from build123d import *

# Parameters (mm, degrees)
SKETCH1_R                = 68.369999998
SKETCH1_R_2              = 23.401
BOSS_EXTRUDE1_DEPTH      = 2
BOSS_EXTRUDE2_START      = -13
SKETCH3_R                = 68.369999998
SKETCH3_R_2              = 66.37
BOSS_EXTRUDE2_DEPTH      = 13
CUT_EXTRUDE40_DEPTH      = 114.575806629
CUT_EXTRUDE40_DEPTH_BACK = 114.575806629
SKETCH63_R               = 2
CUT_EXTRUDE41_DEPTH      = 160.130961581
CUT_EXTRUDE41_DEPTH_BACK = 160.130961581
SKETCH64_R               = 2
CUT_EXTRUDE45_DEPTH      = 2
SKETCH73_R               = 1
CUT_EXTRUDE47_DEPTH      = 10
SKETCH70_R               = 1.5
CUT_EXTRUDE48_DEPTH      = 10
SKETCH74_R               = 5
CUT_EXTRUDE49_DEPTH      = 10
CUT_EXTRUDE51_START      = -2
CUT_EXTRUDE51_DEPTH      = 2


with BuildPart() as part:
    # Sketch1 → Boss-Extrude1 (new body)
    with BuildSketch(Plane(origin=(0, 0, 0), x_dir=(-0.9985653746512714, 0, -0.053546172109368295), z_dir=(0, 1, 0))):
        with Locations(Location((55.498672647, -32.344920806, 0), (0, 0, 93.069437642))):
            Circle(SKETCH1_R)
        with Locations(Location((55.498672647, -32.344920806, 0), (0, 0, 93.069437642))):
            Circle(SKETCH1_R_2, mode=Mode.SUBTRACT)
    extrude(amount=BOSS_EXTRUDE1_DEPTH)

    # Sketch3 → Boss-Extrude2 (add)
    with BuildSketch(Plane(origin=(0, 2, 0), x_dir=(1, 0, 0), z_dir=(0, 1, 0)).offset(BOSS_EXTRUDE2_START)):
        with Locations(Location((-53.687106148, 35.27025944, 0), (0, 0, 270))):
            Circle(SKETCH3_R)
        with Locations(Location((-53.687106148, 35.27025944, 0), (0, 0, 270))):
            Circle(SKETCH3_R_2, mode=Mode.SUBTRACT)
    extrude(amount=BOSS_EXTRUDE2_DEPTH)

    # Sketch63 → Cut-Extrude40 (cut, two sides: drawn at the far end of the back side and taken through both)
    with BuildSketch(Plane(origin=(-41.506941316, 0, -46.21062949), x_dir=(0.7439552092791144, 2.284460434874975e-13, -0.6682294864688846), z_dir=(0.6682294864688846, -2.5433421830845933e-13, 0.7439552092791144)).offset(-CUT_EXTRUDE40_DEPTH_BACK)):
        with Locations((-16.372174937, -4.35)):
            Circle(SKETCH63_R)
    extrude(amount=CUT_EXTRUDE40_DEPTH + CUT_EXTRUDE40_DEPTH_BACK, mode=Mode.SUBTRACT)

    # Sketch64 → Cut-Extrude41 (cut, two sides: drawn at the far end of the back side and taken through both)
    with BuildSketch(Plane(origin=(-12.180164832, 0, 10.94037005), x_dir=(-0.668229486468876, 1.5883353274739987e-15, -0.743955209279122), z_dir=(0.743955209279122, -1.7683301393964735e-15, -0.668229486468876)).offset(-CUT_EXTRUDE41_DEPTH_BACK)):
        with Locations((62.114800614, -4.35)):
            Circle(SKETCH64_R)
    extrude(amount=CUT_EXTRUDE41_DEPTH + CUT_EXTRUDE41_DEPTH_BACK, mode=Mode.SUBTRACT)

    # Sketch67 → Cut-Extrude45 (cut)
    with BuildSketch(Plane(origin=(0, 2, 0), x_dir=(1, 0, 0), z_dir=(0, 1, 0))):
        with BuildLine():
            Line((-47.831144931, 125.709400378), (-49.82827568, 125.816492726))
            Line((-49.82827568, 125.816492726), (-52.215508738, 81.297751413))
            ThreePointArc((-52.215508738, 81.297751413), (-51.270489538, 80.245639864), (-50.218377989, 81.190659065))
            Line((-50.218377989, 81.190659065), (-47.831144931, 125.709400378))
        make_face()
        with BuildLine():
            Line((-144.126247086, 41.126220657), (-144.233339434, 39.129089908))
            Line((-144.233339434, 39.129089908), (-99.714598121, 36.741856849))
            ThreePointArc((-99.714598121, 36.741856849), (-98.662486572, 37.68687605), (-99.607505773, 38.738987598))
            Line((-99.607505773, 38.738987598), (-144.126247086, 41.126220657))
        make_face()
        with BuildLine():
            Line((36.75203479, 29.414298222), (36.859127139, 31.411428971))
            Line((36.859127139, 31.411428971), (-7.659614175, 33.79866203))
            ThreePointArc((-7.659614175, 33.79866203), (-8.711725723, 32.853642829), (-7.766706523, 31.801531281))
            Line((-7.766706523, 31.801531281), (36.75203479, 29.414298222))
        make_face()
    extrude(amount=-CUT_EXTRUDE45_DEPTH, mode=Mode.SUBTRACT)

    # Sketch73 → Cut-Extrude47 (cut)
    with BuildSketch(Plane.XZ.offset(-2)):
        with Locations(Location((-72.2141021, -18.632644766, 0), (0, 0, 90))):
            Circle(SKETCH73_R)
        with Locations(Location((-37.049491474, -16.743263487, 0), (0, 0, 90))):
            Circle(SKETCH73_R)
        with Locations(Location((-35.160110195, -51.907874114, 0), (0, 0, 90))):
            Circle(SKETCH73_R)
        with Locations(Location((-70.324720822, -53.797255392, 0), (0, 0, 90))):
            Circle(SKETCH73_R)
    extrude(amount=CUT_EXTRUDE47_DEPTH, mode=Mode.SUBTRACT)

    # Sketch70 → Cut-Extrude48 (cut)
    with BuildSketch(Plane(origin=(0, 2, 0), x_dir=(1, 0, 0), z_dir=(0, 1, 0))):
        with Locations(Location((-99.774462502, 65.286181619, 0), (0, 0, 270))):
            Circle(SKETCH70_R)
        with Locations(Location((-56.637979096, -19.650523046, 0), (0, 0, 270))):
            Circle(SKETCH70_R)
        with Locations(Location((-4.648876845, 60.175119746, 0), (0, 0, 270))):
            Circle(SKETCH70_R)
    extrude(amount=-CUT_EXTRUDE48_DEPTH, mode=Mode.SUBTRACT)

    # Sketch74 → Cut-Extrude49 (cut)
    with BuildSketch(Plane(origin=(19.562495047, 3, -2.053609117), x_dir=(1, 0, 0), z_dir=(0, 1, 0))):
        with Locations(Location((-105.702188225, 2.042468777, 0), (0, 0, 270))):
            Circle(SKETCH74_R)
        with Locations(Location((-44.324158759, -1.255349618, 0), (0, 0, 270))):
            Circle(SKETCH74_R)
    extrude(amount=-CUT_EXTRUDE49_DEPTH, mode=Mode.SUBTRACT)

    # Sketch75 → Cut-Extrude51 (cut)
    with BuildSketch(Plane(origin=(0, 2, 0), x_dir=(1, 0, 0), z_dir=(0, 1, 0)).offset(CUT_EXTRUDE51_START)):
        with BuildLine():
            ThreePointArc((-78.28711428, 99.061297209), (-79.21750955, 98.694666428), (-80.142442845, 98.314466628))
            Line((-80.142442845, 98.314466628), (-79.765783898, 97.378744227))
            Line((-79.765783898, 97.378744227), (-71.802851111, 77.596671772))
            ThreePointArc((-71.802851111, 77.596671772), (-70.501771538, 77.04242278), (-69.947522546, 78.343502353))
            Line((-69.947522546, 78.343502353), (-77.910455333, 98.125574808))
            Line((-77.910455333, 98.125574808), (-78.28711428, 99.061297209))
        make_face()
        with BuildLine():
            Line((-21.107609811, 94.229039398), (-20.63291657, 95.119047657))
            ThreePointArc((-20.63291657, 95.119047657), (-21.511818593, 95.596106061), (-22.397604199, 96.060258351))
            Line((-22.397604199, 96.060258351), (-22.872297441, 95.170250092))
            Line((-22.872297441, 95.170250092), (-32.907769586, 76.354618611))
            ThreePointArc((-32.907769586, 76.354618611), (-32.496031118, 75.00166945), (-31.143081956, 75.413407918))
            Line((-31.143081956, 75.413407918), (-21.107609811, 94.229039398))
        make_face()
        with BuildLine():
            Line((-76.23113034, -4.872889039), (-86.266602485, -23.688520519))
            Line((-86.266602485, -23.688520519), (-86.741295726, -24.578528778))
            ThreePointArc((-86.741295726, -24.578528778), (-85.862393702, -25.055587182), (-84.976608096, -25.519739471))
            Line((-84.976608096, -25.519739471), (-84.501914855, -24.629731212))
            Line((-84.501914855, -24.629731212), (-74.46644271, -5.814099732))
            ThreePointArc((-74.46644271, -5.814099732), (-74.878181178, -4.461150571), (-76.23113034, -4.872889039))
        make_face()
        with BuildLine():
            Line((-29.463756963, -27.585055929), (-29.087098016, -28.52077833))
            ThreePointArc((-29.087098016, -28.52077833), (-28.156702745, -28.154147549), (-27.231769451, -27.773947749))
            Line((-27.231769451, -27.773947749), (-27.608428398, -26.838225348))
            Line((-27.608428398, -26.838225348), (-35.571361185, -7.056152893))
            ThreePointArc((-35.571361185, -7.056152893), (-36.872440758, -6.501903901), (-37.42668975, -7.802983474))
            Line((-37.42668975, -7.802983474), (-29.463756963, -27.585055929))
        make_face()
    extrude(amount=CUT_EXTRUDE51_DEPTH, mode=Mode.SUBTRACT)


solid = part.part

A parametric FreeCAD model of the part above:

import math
import FreeCAD as App
import Part
import Sketcher
from FreeCAD import Vector

doc = App.newDocument("Part")
body = doc.addObject("PartDesign::Body", "Body")

# Sketch on XZ plane
sketch1 = body.newObject("Sketcher::SketchObject", "Sketch")
sketch1.AttachmentSupport = (doc.getObject("XZ_Plane"), [""])
sketch1.MapMode = "FlatFace"
sketch1.addGeometry([
    Part.Circle(Vector(-54, -35, 0), Vector(0, 0, 1), 68),
    Part.Circle(Vector(-54, -35, 0), Vector(0, 0, 1), 23),
], False)
sketch1.addConstraint([
    Sketcher.Constraint("Coincident", 1, 3, 0, 3),
    Sketcher.Constraint("Diameter", 0, 136.74),
    Sketcher.Constraint("Diameter", 1, 46.802),
    Sketcher.Constraint("DistanceY", 0, 3, -1, 1, 35.270259),
    Sketcher.Constraint("DistanceX", 0, 3, -1, 1, 53.687106),
])
pad1 = body.newObject("PartDesign::Pad", "Pad")
pad1.Profile = sketch1
pad1.Length = 2
pad1.Reversed = True

# Sketch on XZ plane
sketch2 = body.newObject("Sketcher::SketchObject", "Sketch001")
sketch2.AttachmentSupport = (doc.getObject("XZ_Plane"), [""])
sketch2.MapMode = "FlatFace"
sketch2.AttachmentOffset = App.Placement(Vector(0, 0, 11), App.Rotation())
sketch2.addGeometry([
    Part.Circle(Vector(-54, -35, 0), Vector(0, 0, 1), 68),
    Part.Circle(Vector(-54, -35, 0), Vector(0, 0, 1), 66),
], False)
sketch2.addConstraint([
    Sketcher.Constraint("Coincident", 1, 3, 0, 3),
    Sketcher.Constraint("Diameter", 0, 136.74),
    Sketcher.Constraint("Diameter", 1, 132.74),
    Sketcher.Constraint("DistanceY", 0, 3, -1, 1, 35.270259),
    Sketcher.Constraint("DistanceX", 0, 3, -1, 1, 53.687106),
])
pad2 = body.newObject("PartDesign::Pad", "Pad001")
pad2.Profile = sketch2
pad2.Length = 13
pad2.Reversed = True

# Sketch on an angled plane
sketch3 = body.newObject("Sketcher::SketchObject", "Sketch002")
sketch3.Placement = App.Placement(Vector(-41.506941, 0, -46.21063), App.Rotation(Vector(0.743955209, 0, -0.668229486), Vector(0, 0.999999999, 0), Vector(0.668229486, 0, 0.743955209), "ZXY"))
sketch3.addGeometry(Part.Circle(Vector(-16.4, -4.3, 0), Vector(0, 0, 1), 2), False)
sketch3.addConstraint([
    Sketcher.Constraint("Diameter", 0, 4.0),
    Sketcher.Constraint("DistanceY", 0, 3, -1, 1, 4.35),
    Sketcher.Constraint("DistanceX", 0, 3, -1, 1, 16.372175),
])
pocket1 = body.newObject("PartDesign::Pocket", "Pocket")
pocket1.Profile = sketch3
pocket1.Type = "ThroughAll"
pocket1.Midplane = True

# Sketch on an angled plane
sketch4 = body.newObject("Sketcher::SketchObject", "Sketch003")
sketch4.Placement = App.Placement(Vector(-12.180165, 0, 10.94037), App.Rotation(Vector(-0.668229486, 0, -0.743955209), Vector(0, 0.999999999, 0), Vector(0.743955209, 0, -0.668229486), "ZXY"))
sketch4.addGeometry(Part.Circle(Vector(62.1, -4.3, 0), Vector(0, 0, 1), 2), False)
sketch4.addConstraint([
    Sketcher.Constraint("Diameter", 0, 4.0),
    Sketcher.Constraint("DistanceY", 0, 3, -1, 1, 4.35),
    Sketcher.Constraint("DistanceX", -1, 1, 0, 3, 62.114801),
])
pocket2 = body.newObject("PartDesign::Pocket", "Pocket001")
pocket2.Profile = sketch4
pocket2.Type = "ThroughAll"
pocket2.Midplane = True

# Sketch on XZ plane
sketch5 = body.newObject("Sketcher::SketchObject", "Sketch004")
sketch5.AttachmentSupport = (doc.getObject("XZ_Plane"), [""])
sketch5.MapMode = "FlatFace"
sketch5.AttachmentOffset = App.Placement(Vector(0, 0, -2), App.Rotation())
sketch5.addGeometry([
    Part.LineSegment(Vector(-47.8, -125.7, 0), Vector(-49.8, -125.8, 0)),  # 0
    Part.LineSegment(Vector(-49.8, -125.8, 0), Vector(-52.2, -81.3, 0)),  # 1
    Part.ArcOfCircle(Part.Circle(Vector(-51.2, -81.2, 0), Vector(0, 0, 1), 1), math.radians(3), math.radians(183)),  # 2
    Part.LineSegment(Vector(-50.2, -81.2, 0), Vector(-47.8, -125.7, 0)),  # 3
    Part.LineSegment(Vector(-144.1, -41.1, 0), Vector(-144.2, -39.1, 0)),  # 4
    Part.LineSegment(Vector(-144.2, -39.1, 0), Vector(-99.7, -36.7, 0)),  # 5
    Part.ArcOfCircle(Part.Circle(Vector(-99.7, -37.7, 0), Vector(0, 0, 1), 1), math.radians(-87), math.radians(93)),  # 6
    Part.LineSegment(Vector(-99.6, -38.7, 0), Vector(-144.1, -41.1, 0)),  # 7
    Part.LineSegment(Vector(36.8, -29.4, 0), Vector(36.9, -31.4, 0)),  # 8
    Part.LineSegment(Vector(36.9, -31.4, 0), Vector(-7.7, -33.8, 0)),  # 9
    Part.ArcOfCircle(Part.Circle(Vector(-7.7, -32.8, 0), Vector(0, 0, 1), 1), math.radians(93), math.radians(273)),  # 10
    Part.LineSegment(Vector(-7.8, -31.8, 0), Vector(36.8, -29.4, 0)),  # 11
], False)
sketch5.addConstraint([
    Sketcher.Constraint("Coincident", 0, 2, 1, 1),
    Sketcher.Constraint("Tangent", 1, 2, 2, 2),
    Sketcher.Constraint("Tangent", 2, 1, 3, 1),
    Sketcher.Constraint("Coincident", 3, 2, 0, 1),
    Sketcher.Constraint("Coincident", 4, 2, 5, 1),
    Sketcher.Constraint("Tangent", 5, 2, 6, 2),
    Sketcher.Constraint("Tangent", 6, 1, 7, 1),
    Sketcher.Constraint("Coincident", 7, 2, 4, 1),
    Sketcher.Constraint("Coincident", 8, 2, 9, 1),
    Sketcher.Constraint("Tangent", 9, 2, 10, 2),
    Sketcher.Constraint("Tangent", 10, 1, 11, 1),
    Sketcher.Constraint("Coincident", 11, 2, 8, 1),
    Sketcher.Constraint("Equal", 2, 6),
    Sketcher.Constraint("Equal", 6, 10),
    Sketcher.Constraint("Perpendicular", 0, 1),
    Sketcher.Constraint("Parallel", 1, 3),
    Sketcher.Constraint("Parallel", 3, 4),
    Sketcher.Constraint("Perpendicular", 4, 5),
    Sketcher.Constraint("Parallel", 5, 7),
    Sketcher.Constraint("Perpendicular", 7, 8),
    Sketcher.Constraint("Perpendicular", 8, 9),
    Sketcher.Constraint("Parallel", 9, 11),
    Sketcher.Constraint("Equal", 3, 5),
    Sketcher.Constraint("Equal", 7, 9),
    Sketcher.Constraint("Radius", 2, 1.0),
    Sketcher.Constraint("Distance", 1, 44.582701),
    Sketcher.Constraint("DistanceY", 3, 2, -1, 1, 125.7094),
    Sketcher.Constraint("DistanceX", 5, 2, -1, 1, 99.714598),
    Sketcher.Constraint("DistanceY", 11, 2, -1, 1, 29.414298),
    Sketcher.Constraint("DistanceX", 2, 3, 3, 2, 3.385798),
    Sketcher.Constraint("DistanceX", 10, 3, -1, 1, 7.71316),
    Sketcher.Constraint("DistanceX", 1, 2, -1, 1, 52.215509),
    Sketcher.Constraint("DistanceY", 4, 2, -1, 1, 39.12909),
])
pocket3 = body.newObject("PartDesign::Pocket", "Pocket002")
pocket3.Profile = sketch5
pocket3.Length = 2
pocket3.Reversed = True

# Sketch on XZ plane
sketch6 = body.newObject("Sketcher::SketchObject", "Sketch005")
sketch6.AttachmentSupport = (doc.getObject("XZ_Plane"), [""])
sketch6.MapMode = "FlatFace"
sketch6.AttachmentOffset = App.Placement(Vector(0, 0, -2), App.Rotation())
sketch6.addGeometry([
    Part.Circle(Vector(-72.2, -18.6, 0), Vector(0, 0, 1), 1),
    Part.Circle(Vector(-37, -16.7, 0), Vector(0, 0, 1), 1),
    Part.Circle(Vector(-35.2, -51.9, 0), Vector(0, 0, 1), 1),
    Part.Circle(Vector(-70.3, -53.8, 0), Vector(0, 0, 1), 1),
], False)
sketch6.addConstraint([
    Sketcher.Constraint("Equal", 0, 1),
    Sketcher.Constraint("Equal", 1, 2),
    Sketcher.Constraint("Equal", 2, 3),
    Sketcher.Constraint("Diameter", 0, 2.0),
    Sketcher.Constraint("DistanceX", 1, 3, -1, 1, 37.049491),
    Sketcher.Constraint("DistanceX", 2, 3, -1, 1, 35.16011),
    Sketcher.Constraint("DistanceX", 3, 3, -1, 1, 70.324721),
    Sketcher.Constraint("DistanceX", 0, 3, 1, 3, 35.164611),
    Sketcher.Constraint("DistanceY", 0, 3, 1, 3, 1.889381),
    Sketcher.Constraint("DistanceY", 2, 3, 1, 3, 35.164611),
    Sketcher.Constraint("DistanceY", 3, 3, 0, 3, 35.164611),
    Sketcher.Constraint("DistanceY", 0, 3, -1, 1, 18.632645),
])
pocket4 = body.newObject("PartDesign::Pocket", "Pocket003")
pocket4.Profile = sketch6
pocket4.Length = 10
pocket4.Reversed = True

# Sketch on XZ plane
sketch7 = body.newObject("Sketcher::SketchObject", "Sketch006")
sketch7.AttachmentSupport = (doc.getObject("XZ_Plane"), [""])
sketch7.MapMode = "FlatFace"
sketch7.AttachmentOffset = App.Placement(Vector(0, 0, -2), App.Rotation())
sketch7.addGeometry([
    Part.Circle(Vector(-99.8, -65.3, 0), Vector(0, 0, 1), 1.5),
    Part.Circle(Vector(-56.6, 19.7, 0), Vector(0, 0, 1), 1.5),
    Part.Circle(Vector(-4.6, -60.2, 0), Vector(0, 0, 1), 1.5),
], False)
sketch7.addConstraint([
    Sketcher.Constraint("Equal", 0, 1),
    Sketcher.Constraint("Equal", 1, 2),
    Sketcher.Constraint("Diameter", 0, 3.0),
    Sketcher.Constraint("DistanceY", 0, 3, -1, 1, 65.286182),
    Sketcher.Constraint("DistanceX", 1, 3, -1, 1, 56.637979),
    Sketcher.Constraint("DistanceY", 2, 3, -1, 1, 60.17512),
    Sketcher.Constraint("DistanceX", 0, 3, -1, 1, 99.774463),
    Sketcher.Constraint("DistanceY", -1, 1, 1, 3, 19.650523),
    Sketcher.Constraint("DistanceX", 2, 3, -1, 1, 4.648877),
])
pocket5 = body.newObject("PartDesign::Pocket", "Pocket004")
pocket5.Profile = sketch7
pocket5.Length = 10
pocket5.Reversed = True

# Sketch on XZ plane
sketch8 = body.newObject("Sketcher::SketchObject", "Sketch007")
sketch8.AttachmentSupport = (doc.getObject("XZ_Plane"), [""])
sketch8.MapMode = "FlatFace"
sketch8.AttachmentOffset = App.Placement(Vector(0, 0, -3), App.Rotation())
sketch8.addGeometry([
    Part.Circle(Vector(-86, -4, 0), Vector(0, 0, 1), 5),
    Part.Circle(Vector(-25, -1, 0), Vector(0, 0, 1), 5),
], False)
sketch8.addConstraint([
    Sketcher.Constraint("Equal", 0, 1),
    Sketcher.Constraint("Diameter", 0, 10.0),
    Sketcher.Constraint("DistanceY", 1, 3, -1, 1, 0.798259),
    Sketcher.Constraint("DistanceX", 0, 3, 1, 3, 61.378029),
    Sketcher.Constraint("DistanceY", 0, 3, 1, 3, 3.297818),
    Sketcher.Constraint("DistanceX", 0, 3, -1, 1, 86.139693),
])
pocket6 = body.newObject("PartDesign::Pocket", "Pocket005")
pocket6.Profile = sketch8
pocket6.Length = 10
pocket6.Reversed = True

# Sketch on XZ plane
sketch9 = body.newObject("Sketcher::SketchObject", "Sketch008")
sketch9.AttachmentSupport = (doc.getObject("XZ_Plane"), [""])
sketch9.MapMode = "FlatFace"
sketch9.addGeometry([
    Part.ArcOfCircle(Part.Circle(Vector(-53.687104, -35.270254, 0), Vector(0, 0, 1), 68.370005), math.radians(-112.764457), math.radians(-111.088347)),  # 0
    Part.LineSegment(Vector(-80.142443, -98.314467, 0), Vector(-79.765784, -97.378744, 0)),  # 1
    Part.LineSegment(Vector(-79.765784, -97.378744, 0), Vector(-71.802851, -77.596672, 0)),  # 2
    Part.ArcOfCircle(Part.Circle(Vector(-70.875187, -77.970087, 0), Vector(0, 0, 1), 1), math.radians(-21.926402), math.radians(158.073598)),  # 3
    Part.LineSegment(Vector(-69.947523, -78.343502, 0), Vector(-77.910455, -98.125575, 0)),  # 4
    Part.LineSegment(Vector(-77.910455, -98.125575, 0), Vector(-78.287114, -99.061297, 0)),  # 5
    Part.LineSegment(Vector(-21.10761, -94.229039, 0), Vector(-20.632917, -95.119048, 0)),  # 6
    Part.ArcOfCircle(Part.Circle(Vector(-53.687105, -35.270261, 0), Vector(0, 0, 1), 68.369998), math.radians(-62.764457), math.radians(-61.088347)),  # 7
    Part.LineSegment(Vector(-22.397604, -96.060258, 0), Vector(-22.872297, -95.17025, 0)),  # 8
    Part.LineSegment(Vector(-22.872297, -95.17025, 0), Vector(-32.90777, -76.354619, 0)),  # 9
    Part.ArcOfCircle(Part.Circle(Vector(-32.025426, -75.884013, 0), Vector(0, 0, 1), 1), math.radians(28.073598), math.radians(208.073598)),  # 10
    Part.LineSegment(Vector(-31.143082, -75.413408, 0), Vector(-21.10761, -94.229039, 0)),  # 11
    Part.LineSegment(Vector(-76.23113, 4.872889, 0), Vector(-86.266602, 23.688521, 0)),  # 12
    Part.LineSegment(Vector(-86.266602, 23.688521, 0), Vector(-86.741296, 24.578529, 0)),  # 13
    Part.ArcOfCircle(Part.Circle(Vector(-53.687108, -35.270256, 0), Vector(0, 0, 1), 68.369996), math.radians(117.235543), math.radians(118.911653)),  # 14
    Part.LineSegment(Vector(-84.976608, 25.519739, 0), Vector(-84.501915, 24.629731, 0)),  # 15
    Part.LineSegment(Vector(-84.501915, 24.629731, 0), Vector(-74.466443, 5.8141, 0)),  # 16
    Part.ArcOfCircle(Part.Circle(Vector(-75.348787, 5.343494, 0), Vector(0, 0, 1), 1), math.radians(-151.926402), math.radians(28.073598)),  # 17
    Part.LineSegment(Vector(-29.463757, 27.585056, 0), Vector(-29.087098, 28.520778, 0)),  # 18
    Part.ArcOfCircle(Part.Circle(Vector(-53.687107, -35.270261, 0), Vector(0, 0, 1), 68.370002), math.radians(67.235543), math.radians(68.911653)),  # 19
    Part.LineSegment(Vector(-27.231769, 27.773948, 0), Vector(-27.608428, 26.838225, 0)),  # 20
    Part.LineSegment(Vector(-27.608428, 26.838225, 0), Vector(-35.571361, 7.056153, 0)),  # 21
    Part.ArcOfCircle(Part.Circle(Vector(-36.499025, 7.429568, 0), Vector(0, 0, 1), 1), math.radians(158.073598), math.radians(338.073598)),  # 22
    Part.LineSegment(Vector(-37.42669, 7.802983, 0), Vector(-29.463757, 27.585056, 0)),  # 23
], False)
sketch9.addConstraint([
    Sketcher.Constraint("Coincident", 0, 1, 1, 1),
    Sketcher.Constraint("Coincident", 1, 2, 2, 1),
    Sketcher.Constraint("Coincident", 2, 2, 3, 2),
    Sketcher.Constraint("Coincident", 3, 1, 4, 1),
    Sketcher.Constraint("Coincident", 4, 2, 5, 1),
    Sketcher.Constraint("Coincident", 5, 2, 0, 2),
    Sketcher.Constraint("Coincident", 6, 2, 7, 2),
    Sketcher.Constraint("Coincident", 7, 1, 8, 1),
    Sketcher.Constraint("Coincident", 8, 2, 9, 1),
    Sketcher.Constraint("Coincident", 9, 2, 10, 2),
    Sketcher.Constraint("Coincident", 10, 1, 11, 1),
    Sketcher.Constraint("Coincident", 11, 2, 6, 1),
    Sketcher.Constraint("Coincident", 12, 2, 13, 1),
    Sketcher.Constraint("Coincident", 13, 2, 14, 2),
    Sketcher.Constraint("Coincident", 14, 1, 15, 1),
    Sketcher.Constraint("Coincident", 15, 2, 16, 1),
    Sketcher.Constraint("Coincident", 16, 2, 17, 2),
    Sketcher.Constraint("Coincident", 17, 1, 12, 1),
    Sketcher.Constraint("Coincident", 18, 2, 19, 2),
    Sketcher.Constraint("Coincident", 19, 1, 20, 1),
    Sketcher.Constraint("Coincident", 20, 2, 21, 1),
    Sketcher.Constraint("Coincident", 21, 2, 22, 2),
    Sketcher.Constraint("Coincident", 22, 1, 23, 1),
    Sketcher.Constraint("Coincident", 23, 2, 18, 1),
    Sketcher.Constraint("Coincident", 7, 3, 0, 3),
    Sketcher.Constraint("Coincident", 14, 3, 0, 3),
    Sketcher.Constraint("Coincident", 19, 3, 0, 3),
    Sketcher.Constraint("Radius", 3, 1.0),
    Sketcher.Constraint("Radius", 10, 1.0),
    Sketcher.Constraint("Radius", 17, 1.0),
    Sketcher.Constraint("Radius", 22, 1.0),
    Sketcher.Constraint("Radius", 7, 68.369998),
    Sketcher.Constraint("Radius", 19, 68.370002),
    Sketcher.Constraint("Radius", 0, 68.370005),
    Sketcher.Constraint("Radius", 14, 68.369996),
    Sketcher.Constraint("DistanceY", -1, 1, 16, 2, 5.8141),
    Sketcher.Constraint("DistanceX", 18, 2, -1, 1, 29.087098),
    Sketcher.Constraint("DistanceX", 17, 3, 3, 3, 4.4736),
    Sketcher.Constraint("DistanceX", 12, 2, 0, 3, 32.579498),
    Sketcher.Constraint("DistanceX", 14, 1, 14, 3, 31.2895),
    Sketcher.Constraint("DistanceY", 7, 3, -1, 1, 35.270261),
    Sketcher.Constraint("DistanceY", -1, 1, 22, 3, 7.429568),
    Sketcher.Constraint("DistanceX", 2, 2, -1, 1, 71.802851),
    Sketcher.Constraint("DistanceY", 2, 2, -1, 1, 77.596672),
    Sketcher.Constraint("DistanceY", 7, 1, -1, 1, 96.060258),
    Sketcher.Constraint("DistanceY", 8, 2, -1, 1, 95.17025),
    Sketcher.Constraint("DistanceX", 9, 2, -1, 1, 32.90777),
    Sketcher.Constraint("DistanceY", 9, 2, -1, 1, 76.354619),
    Sketcher.Constraint("DistanceX", 10, 1, -1, 1, 31.143082),
    Sketcher.Constraint("DistanceX", 11, 2, -1, 1, 21.10761),
    Sketcher.Constraint("DistanceY", 11, 2, -1, 1, 94.229039),
    Sketcher.Constraint("DistanceY", -1, 1, 12, 2, 23.688521),
    Sketcher.Constraint("DistanceY", -1, 1, 13, 2, 24.578529),
    Sketcher.Constraint("DistanceX", 14, 1, -1, 1, 84.976608),
    Sketcher.Constraint("DistanceY", -1, 1, 15, 2, 24.629731),
    Sketcher.Constraint("DistanceX", 17, 1, -1, 1, 76.23113),
    Sketcher.Constraint("DistanceY", -1, 1, 17, 1, 4.872889),
    Sketcher.Constraint("DistanceX", 19, 1, -1, 1, 27.231769),
    Sketcher.Constraint("DistanceX", 20, 2, -1, 1, 27.608428),
    Sketcher.Constraint("DistanceX", 21, 2, -1, 1, 35.571361),
    Sketcher.Constraint("DistanceX", 22, 1, -1, 1, 37.42669),
    Sketcher.Constraint("DistanceX", 3, 3, 7, 3, 17.188082),
    Sketcher.Constraint("DistanceX", 3, 3, 10, 3, 38.849761),
    Sketcher.Constraint("DistanceX", 17, 3, 22, 3, 38.849761),
    Sketcher.Constraint("DistanceY", 0, 1, 3, 3, 20.34438),
    Sketcher.Constraint("DistanceX", 0, 1, 1, 2, 0.376659),
    Sketcher.Constraint("DistanceY", 1, 2, 10, 3, 21.494731),
    Sketcher.Constraint("DistanceX", 2, 2, 3, 1, 1.855329),
    Sketcher.Constraint("DistanceX", 1, 2, 4, 2, 1.855329),
    Sketcher.Constraint("DistanceY", 4, 2, 1, 2, 0.746831),
    Sketcher.Constraint("DistanceX", 5, 2, 4, 2, 0.376659),
    Sketcher.Constraint("DistanceX", 10, 3, 6, 2, 11.392509),
    Sketcher.Constraint("DistanceX", 8, 2, 6, 2, 2.239381),
    Sketcher.Constraint("DistanceX", 13, 2, 15, 2, 2.239381),
    Sketcher.Constraint("DistanceY", 17, 3, 20, 2, 21.494731),
    Sketcher.Constraint("DistanceX", 23, 2, 18, 2, 0.376659),
    Sketcher.Constraint("DistanceY", 20, 2, 23, 2, 0.746831),
])
pocket7 = body.newObject("PartDesign::Pocket", "Pocket006")
pocket7.Profile = sketch9
pocket7.Length = 2

doc.recompute()
